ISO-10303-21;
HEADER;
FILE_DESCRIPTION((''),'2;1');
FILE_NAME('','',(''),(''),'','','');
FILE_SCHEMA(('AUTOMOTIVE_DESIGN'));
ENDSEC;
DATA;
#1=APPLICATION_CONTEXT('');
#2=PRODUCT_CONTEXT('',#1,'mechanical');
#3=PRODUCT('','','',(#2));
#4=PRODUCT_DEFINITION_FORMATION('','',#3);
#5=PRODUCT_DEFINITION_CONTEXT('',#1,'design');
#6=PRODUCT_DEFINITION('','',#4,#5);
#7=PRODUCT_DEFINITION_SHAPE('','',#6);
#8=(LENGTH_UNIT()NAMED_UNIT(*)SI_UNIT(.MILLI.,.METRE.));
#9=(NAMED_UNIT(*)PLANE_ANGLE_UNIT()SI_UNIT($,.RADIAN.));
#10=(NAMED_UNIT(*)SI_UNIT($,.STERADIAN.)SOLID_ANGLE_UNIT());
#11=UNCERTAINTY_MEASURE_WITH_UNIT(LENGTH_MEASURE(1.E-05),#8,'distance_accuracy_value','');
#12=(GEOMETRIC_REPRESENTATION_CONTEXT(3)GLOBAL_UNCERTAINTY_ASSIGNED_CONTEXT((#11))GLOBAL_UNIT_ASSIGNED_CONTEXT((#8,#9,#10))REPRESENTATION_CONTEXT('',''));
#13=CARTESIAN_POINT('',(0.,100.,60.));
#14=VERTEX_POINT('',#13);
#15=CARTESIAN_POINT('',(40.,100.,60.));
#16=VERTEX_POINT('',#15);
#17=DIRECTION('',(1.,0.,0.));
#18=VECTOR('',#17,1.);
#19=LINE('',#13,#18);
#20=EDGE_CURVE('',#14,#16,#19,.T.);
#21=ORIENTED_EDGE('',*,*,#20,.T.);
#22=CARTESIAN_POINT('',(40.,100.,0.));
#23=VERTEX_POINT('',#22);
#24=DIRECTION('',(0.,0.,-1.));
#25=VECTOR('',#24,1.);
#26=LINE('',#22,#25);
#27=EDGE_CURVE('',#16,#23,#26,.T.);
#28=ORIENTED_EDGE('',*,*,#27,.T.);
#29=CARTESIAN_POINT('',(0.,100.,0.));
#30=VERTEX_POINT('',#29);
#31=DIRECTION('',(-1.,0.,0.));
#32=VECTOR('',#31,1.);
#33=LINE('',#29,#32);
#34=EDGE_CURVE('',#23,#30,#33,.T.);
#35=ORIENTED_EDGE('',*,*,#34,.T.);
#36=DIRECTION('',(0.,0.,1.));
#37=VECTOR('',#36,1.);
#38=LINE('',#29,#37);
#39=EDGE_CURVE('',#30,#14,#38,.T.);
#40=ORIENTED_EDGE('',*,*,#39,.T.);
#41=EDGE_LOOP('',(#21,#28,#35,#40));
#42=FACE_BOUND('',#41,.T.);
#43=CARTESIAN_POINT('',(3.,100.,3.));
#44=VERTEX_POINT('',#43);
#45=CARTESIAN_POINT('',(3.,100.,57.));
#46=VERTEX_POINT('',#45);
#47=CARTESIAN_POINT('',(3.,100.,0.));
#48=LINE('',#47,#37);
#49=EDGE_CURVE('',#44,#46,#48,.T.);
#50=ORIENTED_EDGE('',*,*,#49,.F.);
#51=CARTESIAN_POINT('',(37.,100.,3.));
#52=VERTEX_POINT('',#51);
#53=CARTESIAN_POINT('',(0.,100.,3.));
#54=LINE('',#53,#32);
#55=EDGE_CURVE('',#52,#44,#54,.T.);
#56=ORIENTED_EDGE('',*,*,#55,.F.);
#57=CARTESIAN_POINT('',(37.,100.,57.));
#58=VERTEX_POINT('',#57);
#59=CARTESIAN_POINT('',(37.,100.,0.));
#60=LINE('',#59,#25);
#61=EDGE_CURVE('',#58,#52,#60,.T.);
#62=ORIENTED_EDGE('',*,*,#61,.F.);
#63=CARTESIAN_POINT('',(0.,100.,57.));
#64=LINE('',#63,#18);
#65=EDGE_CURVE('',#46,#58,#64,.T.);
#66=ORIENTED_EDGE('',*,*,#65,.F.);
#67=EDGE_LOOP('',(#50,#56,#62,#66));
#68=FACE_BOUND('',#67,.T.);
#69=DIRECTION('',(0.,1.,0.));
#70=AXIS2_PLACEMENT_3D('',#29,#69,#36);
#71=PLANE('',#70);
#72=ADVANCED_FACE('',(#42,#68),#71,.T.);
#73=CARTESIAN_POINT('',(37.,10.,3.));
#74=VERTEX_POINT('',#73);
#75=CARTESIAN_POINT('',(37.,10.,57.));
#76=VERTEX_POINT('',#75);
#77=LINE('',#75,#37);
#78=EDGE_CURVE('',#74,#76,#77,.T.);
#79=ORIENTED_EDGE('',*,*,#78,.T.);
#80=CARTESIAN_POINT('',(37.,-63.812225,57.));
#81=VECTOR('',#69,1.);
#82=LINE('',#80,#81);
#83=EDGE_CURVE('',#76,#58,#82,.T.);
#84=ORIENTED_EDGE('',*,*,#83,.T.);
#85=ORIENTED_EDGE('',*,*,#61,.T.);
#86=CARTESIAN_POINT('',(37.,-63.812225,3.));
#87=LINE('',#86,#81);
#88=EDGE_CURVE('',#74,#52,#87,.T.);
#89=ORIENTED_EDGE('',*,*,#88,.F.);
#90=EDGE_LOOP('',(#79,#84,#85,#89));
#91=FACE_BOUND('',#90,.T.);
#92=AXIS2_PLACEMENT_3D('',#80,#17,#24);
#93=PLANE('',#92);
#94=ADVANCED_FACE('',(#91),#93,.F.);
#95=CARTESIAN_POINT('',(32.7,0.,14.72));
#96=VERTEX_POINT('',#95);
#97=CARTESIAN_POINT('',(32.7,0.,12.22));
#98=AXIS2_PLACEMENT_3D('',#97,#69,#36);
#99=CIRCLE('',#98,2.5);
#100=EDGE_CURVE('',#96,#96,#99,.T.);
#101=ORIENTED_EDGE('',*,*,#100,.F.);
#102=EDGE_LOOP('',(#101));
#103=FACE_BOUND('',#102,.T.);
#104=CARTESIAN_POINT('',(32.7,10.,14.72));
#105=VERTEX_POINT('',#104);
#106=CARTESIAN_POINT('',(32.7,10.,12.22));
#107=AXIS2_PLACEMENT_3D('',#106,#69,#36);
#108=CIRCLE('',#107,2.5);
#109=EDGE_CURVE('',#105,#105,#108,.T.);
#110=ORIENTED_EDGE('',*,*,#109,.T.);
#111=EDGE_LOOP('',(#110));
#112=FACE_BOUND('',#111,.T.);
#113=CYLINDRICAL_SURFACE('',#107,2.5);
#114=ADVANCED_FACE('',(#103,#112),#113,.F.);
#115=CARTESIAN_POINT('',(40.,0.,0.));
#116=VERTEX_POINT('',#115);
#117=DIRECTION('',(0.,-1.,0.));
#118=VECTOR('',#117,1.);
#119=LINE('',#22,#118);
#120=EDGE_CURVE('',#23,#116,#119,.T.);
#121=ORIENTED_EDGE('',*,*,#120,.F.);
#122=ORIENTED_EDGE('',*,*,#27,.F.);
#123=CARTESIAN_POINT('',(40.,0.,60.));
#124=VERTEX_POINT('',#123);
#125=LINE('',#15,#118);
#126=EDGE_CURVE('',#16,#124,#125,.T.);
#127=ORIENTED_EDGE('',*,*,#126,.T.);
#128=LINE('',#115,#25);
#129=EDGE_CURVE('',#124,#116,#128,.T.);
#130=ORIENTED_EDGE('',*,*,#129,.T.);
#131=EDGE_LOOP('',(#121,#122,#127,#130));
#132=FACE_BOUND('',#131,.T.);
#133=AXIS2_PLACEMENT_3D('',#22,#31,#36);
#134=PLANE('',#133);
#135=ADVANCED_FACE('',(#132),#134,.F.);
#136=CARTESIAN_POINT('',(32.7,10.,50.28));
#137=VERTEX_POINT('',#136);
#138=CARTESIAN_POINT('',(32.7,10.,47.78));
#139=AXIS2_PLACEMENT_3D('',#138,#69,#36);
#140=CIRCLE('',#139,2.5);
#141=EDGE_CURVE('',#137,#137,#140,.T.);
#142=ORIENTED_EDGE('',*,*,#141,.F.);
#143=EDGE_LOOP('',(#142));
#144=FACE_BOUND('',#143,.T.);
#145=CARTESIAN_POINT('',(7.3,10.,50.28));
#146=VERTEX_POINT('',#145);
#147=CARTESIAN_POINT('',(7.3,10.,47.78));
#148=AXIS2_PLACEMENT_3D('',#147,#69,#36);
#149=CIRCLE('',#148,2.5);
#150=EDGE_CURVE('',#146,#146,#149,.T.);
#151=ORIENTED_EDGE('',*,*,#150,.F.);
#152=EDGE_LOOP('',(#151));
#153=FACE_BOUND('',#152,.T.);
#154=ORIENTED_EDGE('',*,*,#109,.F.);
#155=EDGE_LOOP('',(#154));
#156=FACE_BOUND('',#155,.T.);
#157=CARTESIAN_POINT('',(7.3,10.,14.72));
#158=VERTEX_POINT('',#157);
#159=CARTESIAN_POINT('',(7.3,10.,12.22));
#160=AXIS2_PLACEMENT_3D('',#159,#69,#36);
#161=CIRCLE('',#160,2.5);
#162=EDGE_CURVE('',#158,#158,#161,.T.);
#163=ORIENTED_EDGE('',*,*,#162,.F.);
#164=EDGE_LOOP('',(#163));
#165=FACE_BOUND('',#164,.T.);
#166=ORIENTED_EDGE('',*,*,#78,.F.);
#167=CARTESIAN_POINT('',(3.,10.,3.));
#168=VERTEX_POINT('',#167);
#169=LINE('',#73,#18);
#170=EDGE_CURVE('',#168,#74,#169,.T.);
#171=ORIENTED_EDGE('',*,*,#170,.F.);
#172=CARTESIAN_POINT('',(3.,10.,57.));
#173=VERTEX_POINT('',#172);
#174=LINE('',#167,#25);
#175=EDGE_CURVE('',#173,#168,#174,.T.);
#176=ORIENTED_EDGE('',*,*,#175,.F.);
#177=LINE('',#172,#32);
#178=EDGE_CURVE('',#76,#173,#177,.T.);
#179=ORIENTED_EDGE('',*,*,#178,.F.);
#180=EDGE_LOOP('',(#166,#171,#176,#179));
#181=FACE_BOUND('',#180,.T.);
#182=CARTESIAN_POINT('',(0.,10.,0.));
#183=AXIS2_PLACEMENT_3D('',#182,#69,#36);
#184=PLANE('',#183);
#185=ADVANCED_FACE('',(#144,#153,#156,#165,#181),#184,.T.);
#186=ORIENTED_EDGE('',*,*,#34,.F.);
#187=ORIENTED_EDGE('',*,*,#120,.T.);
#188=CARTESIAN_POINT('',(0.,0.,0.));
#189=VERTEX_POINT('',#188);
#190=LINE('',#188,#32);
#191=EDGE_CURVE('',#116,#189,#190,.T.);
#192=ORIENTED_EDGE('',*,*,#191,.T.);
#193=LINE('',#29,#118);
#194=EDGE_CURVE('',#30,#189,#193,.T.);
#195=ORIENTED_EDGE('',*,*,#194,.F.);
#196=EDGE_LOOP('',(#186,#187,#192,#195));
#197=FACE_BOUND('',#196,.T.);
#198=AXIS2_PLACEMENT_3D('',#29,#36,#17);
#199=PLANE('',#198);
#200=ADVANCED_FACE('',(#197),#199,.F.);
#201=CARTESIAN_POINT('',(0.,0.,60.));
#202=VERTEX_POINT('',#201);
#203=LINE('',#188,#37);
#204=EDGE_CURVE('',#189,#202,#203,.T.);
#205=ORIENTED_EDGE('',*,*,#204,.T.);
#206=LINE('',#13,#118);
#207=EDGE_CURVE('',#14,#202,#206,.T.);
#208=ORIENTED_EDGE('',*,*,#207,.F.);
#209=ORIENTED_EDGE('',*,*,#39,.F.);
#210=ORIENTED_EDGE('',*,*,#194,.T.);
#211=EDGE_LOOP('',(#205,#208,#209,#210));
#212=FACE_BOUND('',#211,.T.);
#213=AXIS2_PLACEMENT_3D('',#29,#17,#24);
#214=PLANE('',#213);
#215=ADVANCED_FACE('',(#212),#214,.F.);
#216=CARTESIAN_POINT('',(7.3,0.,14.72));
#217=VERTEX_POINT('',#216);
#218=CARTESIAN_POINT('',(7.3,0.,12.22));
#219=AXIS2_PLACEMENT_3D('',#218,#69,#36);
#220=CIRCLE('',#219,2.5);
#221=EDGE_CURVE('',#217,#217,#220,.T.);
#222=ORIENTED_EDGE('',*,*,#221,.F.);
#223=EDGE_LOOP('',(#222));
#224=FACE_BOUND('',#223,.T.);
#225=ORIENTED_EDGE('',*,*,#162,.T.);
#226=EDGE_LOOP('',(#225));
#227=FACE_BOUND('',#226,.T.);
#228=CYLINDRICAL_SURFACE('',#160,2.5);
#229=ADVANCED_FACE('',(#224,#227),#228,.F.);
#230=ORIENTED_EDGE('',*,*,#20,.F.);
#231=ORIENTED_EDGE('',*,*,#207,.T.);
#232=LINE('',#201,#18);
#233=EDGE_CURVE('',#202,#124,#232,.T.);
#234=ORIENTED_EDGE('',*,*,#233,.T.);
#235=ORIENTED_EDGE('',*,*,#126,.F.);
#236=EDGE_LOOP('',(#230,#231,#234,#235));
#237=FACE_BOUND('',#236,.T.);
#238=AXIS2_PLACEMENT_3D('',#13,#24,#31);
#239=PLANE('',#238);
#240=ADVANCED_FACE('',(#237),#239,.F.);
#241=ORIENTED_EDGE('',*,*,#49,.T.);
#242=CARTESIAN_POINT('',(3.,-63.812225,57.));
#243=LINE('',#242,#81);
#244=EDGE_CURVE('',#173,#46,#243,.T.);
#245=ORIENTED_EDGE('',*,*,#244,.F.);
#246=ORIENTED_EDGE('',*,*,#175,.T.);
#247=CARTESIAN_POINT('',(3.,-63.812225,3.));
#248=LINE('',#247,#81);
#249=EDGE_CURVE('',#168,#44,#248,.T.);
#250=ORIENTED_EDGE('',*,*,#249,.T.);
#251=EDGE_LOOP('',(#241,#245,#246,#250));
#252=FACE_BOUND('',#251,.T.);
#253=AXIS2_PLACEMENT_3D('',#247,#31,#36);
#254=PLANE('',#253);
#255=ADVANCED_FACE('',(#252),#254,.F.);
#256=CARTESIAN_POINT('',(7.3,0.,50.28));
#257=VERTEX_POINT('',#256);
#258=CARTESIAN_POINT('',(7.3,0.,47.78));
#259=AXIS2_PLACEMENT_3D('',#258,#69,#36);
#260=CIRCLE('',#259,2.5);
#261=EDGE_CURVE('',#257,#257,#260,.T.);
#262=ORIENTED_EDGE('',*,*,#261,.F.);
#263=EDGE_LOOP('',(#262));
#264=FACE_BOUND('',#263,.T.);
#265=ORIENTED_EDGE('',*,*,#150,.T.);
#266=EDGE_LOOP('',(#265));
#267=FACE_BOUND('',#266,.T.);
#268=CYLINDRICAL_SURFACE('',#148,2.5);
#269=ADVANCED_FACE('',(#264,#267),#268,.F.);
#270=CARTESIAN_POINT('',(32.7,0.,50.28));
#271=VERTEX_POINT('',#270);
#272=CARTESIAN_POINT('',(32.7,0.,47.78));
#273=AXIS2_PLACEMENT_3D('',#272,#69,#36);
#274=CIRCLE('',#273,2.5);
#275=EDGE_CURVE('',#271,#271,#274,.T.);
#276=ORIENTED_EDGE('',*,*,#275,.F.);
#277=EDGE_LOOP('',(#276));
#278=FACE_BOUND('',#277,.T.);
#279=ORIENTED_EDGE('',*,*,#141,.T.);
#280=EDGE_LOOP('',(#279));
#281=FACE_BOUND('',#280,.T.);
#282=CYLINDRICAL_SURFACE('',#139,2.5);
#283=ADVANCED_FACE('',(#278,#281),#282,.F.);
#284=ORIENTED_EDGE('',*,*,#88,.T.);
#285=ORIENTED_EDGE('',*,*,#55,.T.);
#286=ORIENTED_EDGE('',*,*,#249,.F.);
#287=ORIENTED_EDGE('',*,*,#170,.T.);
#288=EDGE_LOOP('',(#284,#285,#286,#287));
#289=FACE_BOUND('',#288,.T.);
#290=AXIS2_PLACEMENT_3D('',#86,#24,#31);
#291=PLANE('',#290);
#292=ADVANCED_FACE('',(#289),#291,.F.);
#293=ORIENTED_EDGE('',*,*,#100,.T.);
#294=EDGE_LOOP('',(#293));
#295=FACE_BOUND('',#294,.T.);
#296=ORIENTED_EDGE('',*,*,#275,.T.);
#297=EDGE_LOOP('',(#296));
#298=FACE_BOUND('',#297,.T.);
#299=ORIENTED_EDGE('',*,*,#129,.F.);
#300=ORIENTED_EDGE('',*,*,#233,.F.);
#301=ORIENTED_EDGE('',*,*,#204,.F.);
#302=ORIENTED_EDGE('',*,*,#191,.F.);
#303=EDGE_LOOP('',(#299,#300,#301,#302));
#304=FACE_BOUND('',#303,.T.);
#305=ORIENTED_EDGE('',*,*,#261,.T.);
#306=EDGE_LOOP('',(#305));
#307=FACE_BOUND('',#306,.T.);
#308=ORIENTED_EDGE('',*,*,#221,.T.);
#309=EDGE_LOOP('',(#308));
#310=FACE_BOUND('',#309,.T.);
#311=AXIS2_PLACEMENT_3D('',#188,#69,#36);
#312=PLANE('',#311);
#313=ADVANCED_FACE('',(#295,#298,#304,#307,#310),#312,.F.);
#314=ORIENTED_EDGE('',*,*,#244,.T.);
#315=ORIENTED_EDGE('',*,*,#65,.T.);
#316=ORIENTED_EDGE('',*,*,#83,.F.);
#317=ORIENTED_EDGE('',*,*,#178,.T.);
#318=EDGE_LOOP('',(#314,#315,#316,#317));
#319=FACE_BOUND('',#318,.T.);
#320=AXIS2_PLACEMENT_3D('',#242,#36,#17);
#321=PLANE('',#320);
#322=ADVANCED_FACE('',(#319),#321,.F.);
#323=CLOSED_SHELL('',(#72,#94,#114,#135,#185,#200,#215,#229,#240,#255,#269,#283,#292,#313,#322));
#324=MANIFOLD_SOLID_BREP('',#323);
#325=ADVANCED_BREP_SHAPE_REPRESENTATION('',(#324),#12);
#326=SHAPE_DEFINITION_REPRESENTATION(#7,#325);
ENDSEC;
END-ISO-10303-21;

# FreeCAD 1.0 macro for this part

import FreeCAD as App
import Part
import Sketcher

V = App.Vector


def add_polygon(sketch, points):
    """Adds a closed chain of lines whose ends are joined by coincident constraints."""
    first, n = sketch.GeometryCount, len(points)
    for a, b in zip(points, points[1:] + points[:1]):
        sketch.addGeometry(Part.LineSegment(App.Vector(*a, 0), App.Vector(*b, 0)), False)
    for i in range(n):
        sketch.addConstraint(Sketcher.Constraint("Coincident", first + i, 2, first + (i + 1) % n, 1))

doc = App.newDocument("Part")
body = doc.addObject("PartDesign::Body", "Body")

# Sketch on XZ plane
sketch1 = body.newObject("Sketcher::SketchObject", "Sketch")
sketch1.AttachmentSupport = (doc.getObject("XZ_Plane"), [""])
sketch1.MapMode = "FlatFace"
add_polygon(sketch1, [(0, 0), (0, 60), (40, 60), (40, 0)])  # lines 0-3
sketch1.addConstraint(Sketcher.Constraint("Vertical", 0))
sketch1.addConstraint(Sketcher.Constraint("Horizontal", 1))
sketch1.addConstraint(Sketcher.Constraint("Vertical", 2))
sketch1.addConstraint(Sketcher.Constraint("Horizontal", 3))
sketch1.addConstraint(Sketcher.Constraint("Coincident", 3, 2, -1, 1))
sketch1.addConstraint(Sketcher.Constraint("DistanceX", 1, 1, 1, 2, 40.0))
sketch1.addConstraint(Sketcher.Constraint("DistanceY", 0, 1, 0, 2, 60.0))
pad1 = body.newObject("PartDesign::Pad", "Pad")
pad1.Profile = sketch1
pad1.Length = 100
pad1.Reversed = True

# Sketch on XZ plane
sketch2 = body.newObject("Sketcher::SketchObject", "Sketch001")
sketch2.AttachmentSupport = (doc.getObject("XZ_Plane"), [""])
sketch2.MapMode = "FlatFace"
sketch2.AttachmentOffset = App.Placement(V(0, 0, -100), App.Rotation())
add_polygon(sketch2, [(3, 3), (3, 57), (37, 57), (37, 3)])  # lines 0-3
sketch2.addConstraint(Sketcher.Constraint("Vertical", 0))
sketch2.addConstraint(Sketcher.Constraint("Horizontal", 1))
sketch2.addConstraint(Sketcher.Constraint("Vertical", 2))
sketch2.addConstraint(Sketcher.Constraint("Horizontal", 3))
sketch2.addConstraint(Sketcher.Constraint("DistanceX", 1, 1, 1, 2, 34.0))
sketch2.addConstraint(Sketcher.Constraint("DistanceY", 0, 1, 0, 2, 54.0))
sketch2.addConstraint(Sketcher.Constraint("DistanceX", -1, 1, 0, 2, 3.0))
sketch2.addConstraint(Sketcher.Constraint("DistanceY", -1, 1, 0, 2, 57.0))
pocket1 = body.newObject("PartDesign::Pocket", "Pocket")
pocket1.Profile = sketch2
pocket1.Type = "TwoLengths"
pocket1.Length = 124.28828
pocket1.Length2 = 90

# Sketch on XZ plane
sketch3 = body.newObject("Sketcher::SketchObject", "Sketch002")
sketch3.AttachmentSupport = (doc.getObject("XZ_Plane"), [""])
sketch3.MapMode = "FlatFace"
sketch3.AttachmentOffset = App.Placement(V(0, 0, -10), App.Rotation())
sketch3.addGeometry(Part.Circle(V(32.7, 12.2, 0), V(0, 0, 1), 2.5), False)
sketch3.addGeometry(Part.Circle(V(7.3, 12.2, 0), V(0, 0, 1), 2.5), False)
sketch3.addGeometry(Part.Circle(V(7.3, 47.8, 0), V(0, 0, 1), 2.5), False)
sketch3.addGeometry(Part.Circle(V(32.7, 47.8, 0), V(0, 0, 1), 2.5), False)
sketch3.addConstraint(Sketcher.Constraint("Equal", 0, 1))
sketch3.addConstraint(Sketcher.Constraint("Equal", 1, 2))
sketch3.addConstraint(Sketcher.Constraint("Equal", 2, 3))
sketch3.addConstraint(Sketcher.Constraint("Horizontal", 0, 3, 1, 3))
sketch3.addConstraint(Sketcher.Constraint("Horizontal", 2, 3, 3, 3))
sketch3.addConstraint(Sketcher.Constraint("Vertical", 1, 3, 2, 3))
sketch3.addConstraint(Sketcher.Constraint("Vertical", 0, 3, 3, 3))
sketch3.addConstraint(Sketcher.Constraint("Diameter", 0, 5.0))
sketch3.addConstraint(Sketcher.Constraint("DistanceX", -1, 1, 0, 3, 32.7))
sketch3.addConstraint(Sketcher.Constraint("DistanceX", -1, 1, 1, 3, 7.3))
sketch3.addConstraint(Sketcher.Constraint("DistanceY", -1, 1, 0, 3, 12.22))
sketch3.addConstraint(Sketcher.Constraint("DistanceY", -1, 1, 2, 3, 47.78))
doc.recompute()
hole = body.newObject("PartDesign::Hole", "Hole")
hole.Profile = sketch3
hole.ThreadType = "None"
hole.Diameter = 5
hole.DepthType = "ThroughAll"
hole.Reversed = True

doc.recompute()
